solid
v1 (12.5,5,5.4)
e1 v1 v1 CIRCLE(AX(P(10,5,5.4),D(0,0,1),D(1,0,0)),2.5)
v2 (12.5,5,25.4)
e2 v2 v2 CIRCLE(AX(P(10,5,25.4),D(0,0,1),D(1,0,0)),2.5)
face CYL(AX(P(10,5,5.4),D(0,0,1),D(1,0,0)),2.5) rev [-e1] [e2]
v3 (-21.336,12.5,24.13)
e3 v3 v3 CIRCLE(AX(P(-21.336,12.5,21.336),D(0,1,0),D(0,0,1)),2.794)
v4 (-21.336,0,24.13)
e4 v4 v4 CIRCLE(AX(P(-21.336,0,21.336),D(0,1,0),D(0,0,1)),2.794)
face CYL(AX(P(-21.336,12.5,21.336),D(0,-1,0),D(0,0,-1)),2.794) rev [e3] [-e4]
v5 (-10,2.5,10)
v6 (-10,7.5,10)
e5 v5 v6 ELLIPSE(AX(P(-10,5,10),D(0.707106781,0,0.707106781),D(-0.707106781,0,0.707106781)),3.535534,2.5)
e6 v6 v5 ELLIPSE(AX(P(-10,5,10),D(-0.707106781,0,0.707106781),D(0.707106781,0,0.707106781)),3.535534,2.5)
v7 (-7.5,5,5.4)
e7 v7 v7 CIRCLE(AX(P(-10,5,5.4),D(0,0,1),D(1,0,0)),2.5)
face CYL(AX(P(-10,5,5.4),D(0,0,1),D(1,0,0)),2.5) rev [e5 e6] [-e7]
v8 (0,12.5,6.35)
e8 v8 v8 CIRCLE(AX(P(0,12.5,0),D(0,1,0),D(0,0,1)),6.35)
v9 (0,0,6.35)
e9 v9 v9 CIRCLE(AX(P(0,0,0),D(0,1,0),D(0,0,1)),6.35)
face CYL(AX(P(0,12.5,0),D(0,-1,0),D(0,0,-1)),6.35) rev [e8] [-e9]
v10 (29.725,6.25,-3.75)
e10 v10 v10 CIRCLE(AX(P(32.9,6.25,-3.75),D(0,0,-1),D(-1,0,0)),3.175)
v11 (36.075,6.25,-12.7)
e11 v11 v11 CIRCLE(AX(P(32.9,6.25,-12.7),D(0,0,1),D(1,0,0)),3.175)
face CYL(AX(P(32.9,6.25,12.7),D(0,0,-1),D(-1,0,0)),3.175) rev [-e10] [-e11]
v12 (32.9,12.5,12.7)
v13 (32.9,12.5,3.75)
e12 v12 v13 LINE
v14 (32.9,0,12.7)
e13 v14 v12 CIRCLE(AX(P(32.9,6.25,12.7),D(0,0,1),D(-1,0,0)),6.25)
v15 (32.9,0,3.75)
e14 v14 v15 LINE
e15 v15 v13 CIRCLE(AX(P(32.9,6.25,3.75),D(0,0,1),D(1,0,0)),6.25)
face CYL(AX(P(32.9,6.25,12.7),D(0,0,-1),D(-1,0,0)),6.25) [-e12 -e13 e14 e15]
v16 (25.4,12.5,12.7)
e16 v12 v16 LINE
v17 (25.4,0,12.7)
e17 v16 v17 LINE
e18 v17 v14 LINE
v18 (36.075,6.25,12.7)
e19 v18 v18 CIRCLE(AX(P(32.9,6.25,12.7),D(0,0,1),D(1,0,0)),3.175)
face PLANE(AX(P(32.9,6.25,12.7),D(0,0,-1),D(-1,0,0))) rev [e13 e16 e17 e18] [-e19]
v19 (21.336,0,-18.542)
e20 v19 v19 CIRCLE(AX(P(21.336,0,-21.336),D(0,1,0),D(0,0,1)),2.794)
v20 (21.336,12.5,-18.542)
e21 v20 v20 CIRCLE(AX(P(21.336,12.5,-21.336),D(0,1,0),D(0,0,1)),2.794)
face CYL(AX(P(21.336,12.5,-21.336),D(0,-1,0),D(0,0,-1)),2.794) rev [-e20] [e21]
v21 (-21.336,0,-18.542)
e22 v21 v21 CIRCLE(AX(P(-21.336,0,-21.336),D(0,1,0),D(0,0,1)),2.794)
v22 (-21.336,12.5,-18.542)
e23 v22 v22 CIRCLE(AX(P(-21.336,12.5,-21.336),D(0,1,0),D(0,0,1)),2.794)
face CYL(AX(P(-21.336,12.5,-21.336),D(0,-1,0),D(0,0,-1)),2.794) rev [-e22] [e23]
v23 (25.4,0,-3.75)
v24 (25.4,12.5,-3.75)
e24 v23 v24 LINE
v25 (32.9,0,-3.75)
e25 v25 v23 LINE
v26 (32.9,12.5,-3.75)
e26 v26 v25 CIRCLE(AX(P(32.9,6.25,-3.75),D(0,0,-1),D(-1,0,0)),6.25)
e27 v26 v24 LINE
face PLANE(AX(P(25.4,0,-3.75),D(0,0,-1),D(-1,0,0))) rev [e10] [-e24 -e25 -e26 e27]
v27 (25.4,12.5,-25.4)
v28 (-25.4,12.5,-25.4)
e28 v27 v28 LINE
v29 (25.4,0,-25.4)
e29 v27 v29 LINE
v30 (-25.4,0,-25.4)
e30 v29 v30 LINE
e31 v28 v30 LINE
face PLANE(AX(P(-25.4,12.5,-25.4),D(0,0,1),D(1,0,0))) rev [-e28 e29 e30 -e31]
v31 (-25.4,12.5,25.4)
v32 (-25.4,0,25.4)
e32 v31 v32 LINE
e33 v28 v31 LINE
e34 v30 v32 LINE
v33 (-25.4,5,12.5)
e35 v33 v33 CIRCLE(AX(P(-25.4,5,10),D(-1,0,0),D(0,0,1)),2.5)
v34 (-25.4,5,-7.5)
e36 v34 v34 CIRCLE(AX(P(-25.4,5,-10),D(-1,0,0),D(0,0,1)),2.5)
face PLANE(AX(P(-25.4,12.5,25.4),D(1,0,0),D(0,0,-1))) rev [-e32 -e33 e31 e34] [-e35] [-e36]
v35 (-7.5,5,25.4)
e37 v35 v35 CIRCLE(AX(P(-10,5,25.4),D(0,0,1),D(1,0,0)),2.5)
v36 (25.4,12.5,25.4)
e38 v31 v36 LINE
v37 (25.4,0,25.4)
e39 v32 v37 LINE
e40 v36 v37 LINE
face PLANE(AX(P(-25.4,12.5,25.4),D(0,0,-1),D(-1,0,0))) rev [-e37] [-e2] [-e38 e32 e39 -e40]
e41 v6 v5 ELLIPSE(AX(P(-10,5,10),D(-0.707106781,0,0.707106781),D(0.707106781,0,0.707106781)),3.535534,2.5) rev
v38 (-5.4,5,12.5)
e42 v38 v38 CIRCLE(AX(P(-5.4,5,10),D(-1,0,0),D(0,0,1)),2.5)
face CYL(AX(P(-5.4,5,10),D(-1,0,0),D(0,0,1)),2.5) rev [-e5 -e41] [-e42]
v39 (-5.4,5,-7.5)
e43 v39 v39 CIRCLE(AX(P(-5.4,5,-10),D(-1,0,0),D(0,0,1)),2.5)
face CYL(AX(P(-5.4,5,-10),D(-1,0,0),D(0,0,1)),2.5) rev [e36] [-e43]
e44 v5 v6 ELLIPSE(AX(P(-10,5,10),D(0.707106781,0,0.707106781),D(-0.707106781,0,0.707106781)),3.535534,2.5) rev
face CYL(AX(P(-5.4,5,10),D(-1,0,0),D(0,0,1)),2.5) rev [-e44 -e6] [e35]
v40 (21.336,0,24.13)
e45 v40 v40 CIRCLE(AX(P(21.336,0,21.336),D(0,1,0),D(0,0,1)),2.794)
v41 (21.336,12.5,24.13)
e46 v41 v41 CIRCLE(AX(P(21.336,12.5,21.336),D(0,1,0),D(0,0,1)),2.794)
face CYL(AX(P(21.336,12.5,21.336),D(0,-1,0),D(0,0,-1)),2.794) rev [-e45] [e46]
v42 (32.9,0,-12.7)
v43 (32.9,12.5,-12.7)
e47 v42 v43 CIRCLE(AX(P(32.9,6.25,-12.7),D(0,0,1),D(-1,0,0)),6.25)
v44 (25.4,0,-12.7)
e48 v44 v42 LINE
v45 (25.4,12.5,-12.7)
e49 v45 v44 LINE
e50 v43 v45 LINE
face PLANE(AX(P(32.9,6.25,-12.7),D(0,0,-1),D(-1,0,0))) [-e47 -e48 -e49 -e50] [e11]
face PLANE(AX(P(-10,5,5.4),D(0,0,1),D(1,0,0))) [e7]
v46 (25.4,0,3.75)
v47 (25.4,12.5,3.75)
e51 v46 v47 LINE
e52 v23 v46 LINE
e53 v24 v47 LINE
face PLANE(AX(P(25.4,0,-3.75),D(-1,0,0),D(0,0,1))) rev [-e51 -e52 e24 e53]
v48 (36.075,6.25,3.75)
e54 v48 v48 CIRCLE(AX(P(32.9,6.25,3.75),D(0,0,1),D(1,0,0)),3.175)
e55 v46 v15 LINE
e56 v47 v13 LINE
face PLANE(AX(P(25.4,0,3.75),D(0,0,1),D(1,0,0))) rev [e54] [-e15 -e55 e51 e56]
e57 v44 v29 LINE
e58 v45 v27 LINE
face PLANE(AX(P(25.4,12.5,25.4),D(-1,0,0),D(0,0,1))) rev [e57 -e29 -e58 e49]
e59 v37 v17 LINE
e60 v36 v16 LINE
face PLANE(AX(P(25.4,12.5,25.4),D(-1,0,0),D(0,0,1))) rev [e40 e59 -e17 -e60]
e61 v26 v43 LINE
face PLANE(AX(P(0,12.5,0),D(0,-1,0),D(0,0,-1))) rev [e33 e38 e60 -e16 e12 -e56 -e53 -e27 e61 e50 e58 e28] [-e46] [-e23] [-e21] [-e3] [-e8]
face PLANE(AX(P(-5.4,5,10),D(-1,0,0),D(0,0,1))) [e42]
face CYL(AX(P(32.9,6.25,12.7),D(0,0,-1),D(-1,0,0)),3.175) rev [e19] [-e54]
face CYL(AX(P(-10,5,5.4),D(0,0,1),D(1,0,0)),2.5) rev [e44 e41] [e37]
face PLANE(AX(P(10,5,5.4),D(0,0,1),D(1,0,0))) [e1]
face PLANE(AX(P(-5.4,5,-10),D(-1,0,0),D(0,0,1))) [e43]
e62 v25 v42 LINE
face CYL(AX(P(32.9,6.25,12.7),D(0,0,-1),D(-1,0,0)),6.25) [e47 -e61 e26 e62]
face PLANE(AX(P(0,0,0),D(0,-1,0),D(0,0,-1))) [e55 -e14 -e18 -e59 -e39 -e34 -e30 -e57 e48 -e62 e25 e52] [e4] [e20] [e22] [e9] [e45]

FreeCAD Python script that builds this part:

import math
import FreeCAD as App
import Part
import Sketcher
from FreeCAD import Vector
Q = App.Units.Quantity


def add_polygon(sketch, points):
    """Adds a closed chain of lines whose ends are joined by coincident constraints."""
    first, n = sketch.GeometryCount, len(points)
    for a, b in zip(points, points[1:] + points[:1]):
        sketch.addGeometry(Part.LineSegment(App.Vector(*a, 0), App.Vector(*b, 0)), False)
    for i in range(n):
        sketch.addConstraint(Sketcher.Constraint("Coincident", first + i, 2, first + (i + 1) % n, 1))

doc = App.newDocument("Part")
body = doc.addObject("PartDesign::Body", "Body")

sketch1 = body.newObject("Sketcher::SketchObject", "Sketch")
sketch1.AttachmentSupport = (doc.getObject("XZ_Plane"), [""])
sketch1.MapMode = "FlatFace"
add_polygon(sketch1, [(-25.4, -25.4), (-25.4, 25.4), (25.4, 25.4), (25.4, -25.4)])
sketch1.addGeometry(Part.Circle(Vector(-21.336, 21.336, 0), Vector(0, 0, 1), 2.794), False)
sketch1.addGeometry(Part.Circle(Vector(21.336, 21.336, 0), Vector(0, 0, 1), 2.794), False)
sketch1.addGeometry(Part.Circle(Vector(-21.336, -21.336, 0), Vector(0, 0, 1), 2.794), False)
sketch1.addGeometry(Part.Circle(Vector(0, 0, 0), Vector(0, 0, 1), 6.35), False)
sketch1.addGeometry(Part.Circle(Vector(21.336, -21.336, 0), Vector(0, 0, 1), 2.794), False)
sketch1.addConstraint(Sketcher.Constraint("Vertical", 0))
sketch1.addConstraint(Sketcher.Constraint("Horizontal", 1))
sketch1.addConstraint(Sketcher.Constraint("Vertical", 2))
sketch1.addConstraint(Sketcher.Constraint("Horizontal", 3))
sketch1.addConstraint(Sketcher.Constraint("Coincident", 7, 3, -1, 1))
sketch1.addConstraint(Sketcher.Constraint("Equal", 4, 5))
sketch1.addConstraint(Sketcher.Constraint("Equal", 5, 6))
sketch1.addConstraint(Sketcher.Constraint("Equal", 6, 8))
sketch1.addConstraint(Sketcher.Constraint("Symmetric", 5, 3, 6, 3, -1, 1))
sketch1.addConstraint(Sketcher.Constraint("Symmetric", 4, 3, 8, 3, -1, 1))
sketch1.addConstraint(Sketcher.Constraint("Symmetric", 0, 2, 2, 2, -1, 1))
sketch1.addConstraint(Sketcher.Constraint("Symmetric", 4, 3, 5, 3, -2))
sketch1.addConstraint(Sketcher.Constraint("Equal", 3, 0))
sketch1.addConstraint(Sketcher.Constraint("Diameter", 7, Q("12.7 mm")))
sketch1.addConstraint(Sketcher.Constraint("Diameter", 4, Q("5.588 mm")))
sketch1.addConstraint(Sketcher.Constraint("DistanceX", 1, 1, 1, 2, Q("50.8 mm")))
sketch1.addConstraint(Sketcher.Constraint("DistanceX", 4, 3, -1, 1, Q("21.336 mm")))
sketch1.addConstraint(Sketcher.Constraint("DistanceY", -1, 1, 4, 3, Q("21.336 mm")))
pad1 = body.newObject("PartDesign::Pad", "Pad")
pad1.Profile = sketch1
pad1.Length = 12.5
pad1.Reversed = True

sketch2 = body.newObject("Sketcher::SketchObject", "Sketch001")
sketch2.AttachmentSupport = (doc.getObject("XY_Plane"), [""])
sketch2.MapMode = "FlatFace"
sketch2.addGeometry(Part.LineSegment(Vector(25.4, 0, 0), Vector(32.9, 0, 0)), False)
sketch2.addGeometry(Part.ArcOfCircle(Part.Circle(Vector(32.9, 6.25, 0), Vector(0, 0, 1), 6.25), math.radians(-90), math.radians(90)), False)
sketch2.addGeometry(Part.LineSegment(Vector(32.9, 12.5, 0), Vector(25.4, 12.5, 0)), False)
sketch2.addGeometry(Part.LineSegment(Vector(25.4, 12.5, 0), Vector(25.4, 0, 0)), False)
sketch2.addGeometry(Part.Circle(Vector(32.9, 6.25, 0), Vector(0, 0, 1), 3.175), False)
sketch2.addConstraint(Sketcher.Constraint("Tangent", 0, 2, 1, 1))
sketch2.addConstraint(Sketcher.Constraint("Tangent", 1, 2, 2, 1))
sketch2.addConstraint(Sketcher.Constraint("Coincident", 2, 2, 3, 1))
sketch2.addConstraint(Sketcher.Constraint("Coincident", 3, 2, 0, 1))
sketch2.addConstraint(Sketcher.Constraint("Horizontal", 0))
sketch2.addConstraint(Sketcher.Constraint("Horizontal", 2))
sketch2.addConstraint(Sketcher.Constraint("Vertical", 3))
sketch2.addConstraint(Sketcher.Constraint("Coincident", 4, 3, 1, 3))
sketch2.addConstraint(Sketcher.Constraint("PointOnObject", 0, 2, -1))
sketch2.addConstraint(Sketcher.Constraint("Diameter", 4, Q("6.35 mm")))
sketch2.addConstraint(Sketcher.Constraint("Radius", 1, Q("6.25 mm")))
sketch2.addConstraint(Sketcher.Constraint("DistanceX", 0, 1, 0, 2, Q("7.5 mm")))
sketch2.addConstraint(Sketcher.Constraint("DistanceX", -1, 1, 1, 3, Q("32.9 mm")))
pad2 = body.newObject("PartDesign::Pad", "Pad001")
pad2.Profile = sketch2
pad2.Length = 25.4
pad2.Midplane = True

sketch3 = body.newObject("Sketcher::SketchObject", "Sketch002")
sketch3.AttachmentSupport = (doc.getObject("XZ_Plane"), [""])
sketch3.MapMode = "FlatFace"
sketch3.AttachmentOffset = App.Placement(Vector(0, 0, -12.5), App.Rotation())
add_polygon(sketch3, [(25.4, -3.75), (25.4, 3.75), (39.15, 3.75), (39.15, -3.75)])
sketch3.addConstraint(Sketcher.Constraint("Vertical", 0))
sketch3.addConstraint(Sketcher.Constraint("Horizontal", 1))
sketch3.addConstraint(Sketcher.Constraint("Vertical", 2))
sketch3.addConstraint(Sketcher.Constraint("Horizontal", 3))
sketch3.addConstraint(Sketcher.Constraint("DistanceY", 0, 1, 0, 2, Q("7.5 mm")))
sketch3.addConstraint(Sketcher.Constraint("DistanceX", 1, 1, 1, 2, Q("13.75 mm")))
sketch3.addConstraint(Sketcher.Constraint("DistanceX", -1, 1, 0, 2, Q("25.4 mm")))
sketch3.addConstraint(Sketcher.Constraint("DistanceY", -1, 1, 0, 2, Q("3.75 mm")))
pocket1 = body.newObject("PartDesign::Pocket", "Pocket")
pocket1.Profile = sketch3
pocket1.Type = "ThroughAll"
pocket1.Reversed = True

sketch4 = body.newObject("Sketcher::SketchObject", "Sketch003")
sketch4.AttachmentSupport = (doc.getObject("XY_Plane"), [""])
sketch4.MapMode = "FlatFace"
sketch4.AttachmentOffset = App.Placement(Vector(0, 0, 25.4), App.Rotation())
sketch4.addGeometry(Part.Circle(Vector(-10, 5, 0), Vector(0, 0, 1), 2.5), False)
sketch4.addGeometry(Part.Circle(Vector(10, 5, 0), Vector(0, 0, 1), 2.5), False)
sketch4.addConstraint(Sketcher.Constraint("Equal", 0, 1))
sketch4.addConstraint(Sketcher.Constraint("Symmetric", 0, 3, 1, 3, -2))
sketch4.addConstraint(Sketcher.Constraint("Diameter", 0, Q("5 mm")))
sketch4.addConstraint(Sketcher.Constraint("DistanceX", 0, 3, -1, 1, Q("10 mm")))
sketch4.addConstraint(Sketcher.Constraint("DistanceY", -1, 1, 0, 3, Q("5 mm")))
pocket2 = body.newObject("PartDesign::Pocket", "Pocket001")
pocket2.Profile = sketch4
pocket2.Length = 20

sketch5 = body.newObject("Sketcher::SketchObject", "Sketch004")
sketch5.AttachmentSupport = (doc.getObject("YZ_Plane"), [""])
sketch5.MapMode = "FlatFace"
sketch5.AttachmentOffset = App.Placement(Vector(0, 0, -25.4), App.Rotation())
sketch5.addGeometry(Part.Circle(Vector(5, -10, 0), Vector(0, 0, 1), 2.5), False)
sketch5.addGeometry(Part.Circle(Vector(5, 10, 0), Vector(0, 0, 1), 2.5), False)
sketch5.addConstraint(Sketcher.Constraint("Equal", 0, 1))
sketch5.addConstraint(Sketcher.Constraint("Symmetric", 0, 3, 1, 3, -1))
sketch5.addConstraint(Sketcher.Constraint("Diameter", 0, Q("5 mm")))
sketch5.addConstraint(Sketcher.Constraint("DistanceX", -1, 1, 0, 3, Q("5 mm")))
sketch5.addConstraint(Sketcher.Constraint("DistanceY", 0, 3, -1, 1, Q("10 mm")))
pocket3 = body.newObject("PartDesign::Pocket", "Pocket002")
pocket3.Profile = sketch5
pocket3.Length = 20
pocket3.Reversed = True

doc.recompute()
